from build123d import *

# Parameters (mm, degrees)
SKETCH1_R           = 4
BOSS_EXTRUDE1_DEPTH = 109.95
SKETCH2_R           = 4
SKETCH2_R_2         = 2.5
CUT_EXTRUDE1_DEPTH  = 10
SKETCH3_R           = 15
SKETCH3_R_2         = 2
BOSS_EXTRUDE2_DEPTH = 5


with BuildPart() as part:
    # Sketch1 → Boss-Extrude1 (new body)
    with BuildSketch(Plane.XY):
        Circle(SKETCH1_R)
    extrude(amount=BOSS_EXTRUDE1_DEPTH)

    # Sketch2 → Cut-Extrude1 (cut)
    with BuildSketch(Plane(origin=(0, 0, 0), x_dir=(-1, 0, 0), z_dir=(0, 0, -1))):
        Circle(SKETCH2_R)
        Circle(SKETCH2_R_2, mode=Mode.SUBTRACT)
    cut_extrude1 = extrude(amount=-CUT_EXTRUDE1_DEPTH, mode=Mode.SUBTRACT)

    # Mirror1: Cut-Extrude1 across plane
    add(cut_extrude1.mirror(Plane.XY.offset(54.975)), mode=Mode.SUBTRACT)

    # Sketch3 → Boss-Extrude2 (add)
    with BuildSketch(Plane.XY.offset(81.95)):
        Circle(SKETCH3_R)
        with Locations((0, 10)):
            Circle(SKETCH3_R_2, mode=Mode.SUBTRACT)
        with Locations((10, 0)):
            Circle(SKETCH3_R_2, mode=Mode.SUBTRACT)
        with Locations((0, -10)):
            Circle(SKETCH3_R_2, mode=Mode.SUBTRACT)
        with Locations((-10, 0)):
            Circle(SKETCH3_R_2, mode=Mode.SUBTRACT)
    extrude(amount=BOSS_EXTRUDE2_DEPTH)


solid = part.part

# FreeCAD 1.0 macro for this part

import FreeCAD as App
import Part
import Sketcher
Q = App.Units.Quantity

doc = App.newDocument("Part")
body = doc.addObject("PartDesign::Body", "Body")

# Sketch on XY plane
sketch1 = doc.addObject("Sketcher::SketchObject", "Sketch")
body.addObject(sketch1)
sketch1.AttachmentSupport = (doc.XY_Plane, [""])
sketch1.MapMode = "FlatFace"
sketch1.addGeometry(Part.Circle(App.Vector(0, 0, 0), App.Vector(0, 0, 1), 4), False)
sketch1.addConstraint(Sketcher.Constraint("Coincident", 0, 3, -1, 1))
sketch1.addConstraint(Sketcher.Constraint("Diameter", 0, Q("8 mm")))
pad1 = doc.addObject("PartDesign::Pad", "Pad")
body.addObject(pad1)
pad1.Profile = sketch1
pad1.Length = 109.95

# Sketch on XY plane
sketch2 = doc.addObject("Sketcher::SketchObject", "Sketch001")
body.addObject(sketch2)
sketch2.AttachmentSupport = (doc.XY_Plane, [""])
sketch2.MapMode = "FlatFace"
sketch2.addGeometry(Part.Circle(App.Vector(0, 0, 0), App.Vector(0, 0, 1), 4), False)
sketch2.addGeometry(Part.Circle(App.Vector(0, 0, 0), App.Vector(0, 0, 1), 2.5), False)
sketch2.addConstraint(Sketcher.Constraint("Coincident", 0, 3, -1, 1))
sketch2.addConstraint(Sketcher.Constraint("Coincident", 1, 3, -1, 1))
sketch2.addConstraint(Sketcher.Constraint("Diameter", 0, Q("8 mm")))
sketch2.addConstraint(Sketcher.Constraint("Diameter", 1, Q("5 mm")))
pocket1 = doc.addObject("PartDesign::Pocket", "Pocket")
body.addObject(pocket1)
pocket1.Profile = sketch2
pocket1.Length = 10
pocket1.Reversed = True
doc.recompute()

datumplane = doc.addObject("PartDesign::Plane", "DatumPlane")
body.addObject(datumplane)
datumplane.AttachmentSupport = (doc.XY_Plane, [""])
datumplane.MapMode = "FlatFace"
datumplane.AttachmentOffset = App.Placement(App.Vector(0, 0, 54.975), App.Rotation())
mirrored = doc.addObject("PartDesign::Mirrored", "Mirrored")
body.addObject(mirrored)
mirrored.Originals = [pocket1]
mirrored.MirrorPlane = (datumplane, [""])
body.Tip = mirrored

# Sketch on XY plane
sketch3 = doc.addObject("Sketcher::SketchObject", "Sketch002")
body.addObject(sketch3)
sketch3.AttachmentSupport = (doc.XY_Plane, [""])
sketch3.MapMode = "FlatFace"
sketch3.AttachmentOffset = App.Placement(App.Vector(0, 0, 81.95), App.Rotation())
sketch3.addGeometry(Part.Circle(App.Vector(0, 0, 0), App.Vector(0, 0, 1), 15), False)
sketch3.addGeometry(Part.Circle(App.Vector(0, -10, 0), App.Vector(0, 0, 1), 2), False)
sketch3.addGeometry(Part.Circle(App.Vector(-10, 0, 0), App.Vector(0, 0, 1), 2), False)
sketch3.addGeometry(Part.Circle(App.Vector(10, 0, 0), App.Vector(0, 0, 1), 2), False)
sketch3.addGeometry(Part.Circle(App.Vector(0, 10, 0), App.Vector(0, 0, 1), 2), False)
sketch3.addConstraint(Sketcher.Constraint("Coincident", 0, 3, -1, 1))
sketch3.addConstraint(Sketcher.Constraint("Equal", 1, 2))
sketch3.addConstraint(Sketcher.Constraint("Equal", 2, 3))
sketch3.addConstraint(Sketcher.Constraint("Equal", 3, 4))
sketch3.addConstraint(Sketcher.Constraint("Symmetric", 2, 3, 3, 3, -1, 1))
sketch3.addConstraint(Sketcher.Constraint("Symmetric", 1, 3, 4, 3, -1, 1))
sketch3.addConstraint(Sketcher.Constraint("PointOnObject", 1, 3, -2))
sketch3.addConstraint(Sketcher.Constraint("PointOnObject", 2, 3, -1))
sketch3.addConstraint(Sketcher.Constraint("Diameter", 0, Q("30 mm")))
sketch3.addConstraint(Sketcher.Constraint("Diameter", 1, Q("4 mm")))
sketch3.addConstraint(Sketcher.Constraint("DistanceY", 1, 3, -1, 1, Q("10 mm")))
sketch3.addConstraint(Sketcher.Constraint("DistanceX", 2, 3, -1, 1, Q("10 mm")))
pad2 = doc.addObject("PartDesign::Pad", "Pad001")
body.addObject(pad2)
pad2.Profile = sketch3
pad2.Length = 5

doc.recompute()
